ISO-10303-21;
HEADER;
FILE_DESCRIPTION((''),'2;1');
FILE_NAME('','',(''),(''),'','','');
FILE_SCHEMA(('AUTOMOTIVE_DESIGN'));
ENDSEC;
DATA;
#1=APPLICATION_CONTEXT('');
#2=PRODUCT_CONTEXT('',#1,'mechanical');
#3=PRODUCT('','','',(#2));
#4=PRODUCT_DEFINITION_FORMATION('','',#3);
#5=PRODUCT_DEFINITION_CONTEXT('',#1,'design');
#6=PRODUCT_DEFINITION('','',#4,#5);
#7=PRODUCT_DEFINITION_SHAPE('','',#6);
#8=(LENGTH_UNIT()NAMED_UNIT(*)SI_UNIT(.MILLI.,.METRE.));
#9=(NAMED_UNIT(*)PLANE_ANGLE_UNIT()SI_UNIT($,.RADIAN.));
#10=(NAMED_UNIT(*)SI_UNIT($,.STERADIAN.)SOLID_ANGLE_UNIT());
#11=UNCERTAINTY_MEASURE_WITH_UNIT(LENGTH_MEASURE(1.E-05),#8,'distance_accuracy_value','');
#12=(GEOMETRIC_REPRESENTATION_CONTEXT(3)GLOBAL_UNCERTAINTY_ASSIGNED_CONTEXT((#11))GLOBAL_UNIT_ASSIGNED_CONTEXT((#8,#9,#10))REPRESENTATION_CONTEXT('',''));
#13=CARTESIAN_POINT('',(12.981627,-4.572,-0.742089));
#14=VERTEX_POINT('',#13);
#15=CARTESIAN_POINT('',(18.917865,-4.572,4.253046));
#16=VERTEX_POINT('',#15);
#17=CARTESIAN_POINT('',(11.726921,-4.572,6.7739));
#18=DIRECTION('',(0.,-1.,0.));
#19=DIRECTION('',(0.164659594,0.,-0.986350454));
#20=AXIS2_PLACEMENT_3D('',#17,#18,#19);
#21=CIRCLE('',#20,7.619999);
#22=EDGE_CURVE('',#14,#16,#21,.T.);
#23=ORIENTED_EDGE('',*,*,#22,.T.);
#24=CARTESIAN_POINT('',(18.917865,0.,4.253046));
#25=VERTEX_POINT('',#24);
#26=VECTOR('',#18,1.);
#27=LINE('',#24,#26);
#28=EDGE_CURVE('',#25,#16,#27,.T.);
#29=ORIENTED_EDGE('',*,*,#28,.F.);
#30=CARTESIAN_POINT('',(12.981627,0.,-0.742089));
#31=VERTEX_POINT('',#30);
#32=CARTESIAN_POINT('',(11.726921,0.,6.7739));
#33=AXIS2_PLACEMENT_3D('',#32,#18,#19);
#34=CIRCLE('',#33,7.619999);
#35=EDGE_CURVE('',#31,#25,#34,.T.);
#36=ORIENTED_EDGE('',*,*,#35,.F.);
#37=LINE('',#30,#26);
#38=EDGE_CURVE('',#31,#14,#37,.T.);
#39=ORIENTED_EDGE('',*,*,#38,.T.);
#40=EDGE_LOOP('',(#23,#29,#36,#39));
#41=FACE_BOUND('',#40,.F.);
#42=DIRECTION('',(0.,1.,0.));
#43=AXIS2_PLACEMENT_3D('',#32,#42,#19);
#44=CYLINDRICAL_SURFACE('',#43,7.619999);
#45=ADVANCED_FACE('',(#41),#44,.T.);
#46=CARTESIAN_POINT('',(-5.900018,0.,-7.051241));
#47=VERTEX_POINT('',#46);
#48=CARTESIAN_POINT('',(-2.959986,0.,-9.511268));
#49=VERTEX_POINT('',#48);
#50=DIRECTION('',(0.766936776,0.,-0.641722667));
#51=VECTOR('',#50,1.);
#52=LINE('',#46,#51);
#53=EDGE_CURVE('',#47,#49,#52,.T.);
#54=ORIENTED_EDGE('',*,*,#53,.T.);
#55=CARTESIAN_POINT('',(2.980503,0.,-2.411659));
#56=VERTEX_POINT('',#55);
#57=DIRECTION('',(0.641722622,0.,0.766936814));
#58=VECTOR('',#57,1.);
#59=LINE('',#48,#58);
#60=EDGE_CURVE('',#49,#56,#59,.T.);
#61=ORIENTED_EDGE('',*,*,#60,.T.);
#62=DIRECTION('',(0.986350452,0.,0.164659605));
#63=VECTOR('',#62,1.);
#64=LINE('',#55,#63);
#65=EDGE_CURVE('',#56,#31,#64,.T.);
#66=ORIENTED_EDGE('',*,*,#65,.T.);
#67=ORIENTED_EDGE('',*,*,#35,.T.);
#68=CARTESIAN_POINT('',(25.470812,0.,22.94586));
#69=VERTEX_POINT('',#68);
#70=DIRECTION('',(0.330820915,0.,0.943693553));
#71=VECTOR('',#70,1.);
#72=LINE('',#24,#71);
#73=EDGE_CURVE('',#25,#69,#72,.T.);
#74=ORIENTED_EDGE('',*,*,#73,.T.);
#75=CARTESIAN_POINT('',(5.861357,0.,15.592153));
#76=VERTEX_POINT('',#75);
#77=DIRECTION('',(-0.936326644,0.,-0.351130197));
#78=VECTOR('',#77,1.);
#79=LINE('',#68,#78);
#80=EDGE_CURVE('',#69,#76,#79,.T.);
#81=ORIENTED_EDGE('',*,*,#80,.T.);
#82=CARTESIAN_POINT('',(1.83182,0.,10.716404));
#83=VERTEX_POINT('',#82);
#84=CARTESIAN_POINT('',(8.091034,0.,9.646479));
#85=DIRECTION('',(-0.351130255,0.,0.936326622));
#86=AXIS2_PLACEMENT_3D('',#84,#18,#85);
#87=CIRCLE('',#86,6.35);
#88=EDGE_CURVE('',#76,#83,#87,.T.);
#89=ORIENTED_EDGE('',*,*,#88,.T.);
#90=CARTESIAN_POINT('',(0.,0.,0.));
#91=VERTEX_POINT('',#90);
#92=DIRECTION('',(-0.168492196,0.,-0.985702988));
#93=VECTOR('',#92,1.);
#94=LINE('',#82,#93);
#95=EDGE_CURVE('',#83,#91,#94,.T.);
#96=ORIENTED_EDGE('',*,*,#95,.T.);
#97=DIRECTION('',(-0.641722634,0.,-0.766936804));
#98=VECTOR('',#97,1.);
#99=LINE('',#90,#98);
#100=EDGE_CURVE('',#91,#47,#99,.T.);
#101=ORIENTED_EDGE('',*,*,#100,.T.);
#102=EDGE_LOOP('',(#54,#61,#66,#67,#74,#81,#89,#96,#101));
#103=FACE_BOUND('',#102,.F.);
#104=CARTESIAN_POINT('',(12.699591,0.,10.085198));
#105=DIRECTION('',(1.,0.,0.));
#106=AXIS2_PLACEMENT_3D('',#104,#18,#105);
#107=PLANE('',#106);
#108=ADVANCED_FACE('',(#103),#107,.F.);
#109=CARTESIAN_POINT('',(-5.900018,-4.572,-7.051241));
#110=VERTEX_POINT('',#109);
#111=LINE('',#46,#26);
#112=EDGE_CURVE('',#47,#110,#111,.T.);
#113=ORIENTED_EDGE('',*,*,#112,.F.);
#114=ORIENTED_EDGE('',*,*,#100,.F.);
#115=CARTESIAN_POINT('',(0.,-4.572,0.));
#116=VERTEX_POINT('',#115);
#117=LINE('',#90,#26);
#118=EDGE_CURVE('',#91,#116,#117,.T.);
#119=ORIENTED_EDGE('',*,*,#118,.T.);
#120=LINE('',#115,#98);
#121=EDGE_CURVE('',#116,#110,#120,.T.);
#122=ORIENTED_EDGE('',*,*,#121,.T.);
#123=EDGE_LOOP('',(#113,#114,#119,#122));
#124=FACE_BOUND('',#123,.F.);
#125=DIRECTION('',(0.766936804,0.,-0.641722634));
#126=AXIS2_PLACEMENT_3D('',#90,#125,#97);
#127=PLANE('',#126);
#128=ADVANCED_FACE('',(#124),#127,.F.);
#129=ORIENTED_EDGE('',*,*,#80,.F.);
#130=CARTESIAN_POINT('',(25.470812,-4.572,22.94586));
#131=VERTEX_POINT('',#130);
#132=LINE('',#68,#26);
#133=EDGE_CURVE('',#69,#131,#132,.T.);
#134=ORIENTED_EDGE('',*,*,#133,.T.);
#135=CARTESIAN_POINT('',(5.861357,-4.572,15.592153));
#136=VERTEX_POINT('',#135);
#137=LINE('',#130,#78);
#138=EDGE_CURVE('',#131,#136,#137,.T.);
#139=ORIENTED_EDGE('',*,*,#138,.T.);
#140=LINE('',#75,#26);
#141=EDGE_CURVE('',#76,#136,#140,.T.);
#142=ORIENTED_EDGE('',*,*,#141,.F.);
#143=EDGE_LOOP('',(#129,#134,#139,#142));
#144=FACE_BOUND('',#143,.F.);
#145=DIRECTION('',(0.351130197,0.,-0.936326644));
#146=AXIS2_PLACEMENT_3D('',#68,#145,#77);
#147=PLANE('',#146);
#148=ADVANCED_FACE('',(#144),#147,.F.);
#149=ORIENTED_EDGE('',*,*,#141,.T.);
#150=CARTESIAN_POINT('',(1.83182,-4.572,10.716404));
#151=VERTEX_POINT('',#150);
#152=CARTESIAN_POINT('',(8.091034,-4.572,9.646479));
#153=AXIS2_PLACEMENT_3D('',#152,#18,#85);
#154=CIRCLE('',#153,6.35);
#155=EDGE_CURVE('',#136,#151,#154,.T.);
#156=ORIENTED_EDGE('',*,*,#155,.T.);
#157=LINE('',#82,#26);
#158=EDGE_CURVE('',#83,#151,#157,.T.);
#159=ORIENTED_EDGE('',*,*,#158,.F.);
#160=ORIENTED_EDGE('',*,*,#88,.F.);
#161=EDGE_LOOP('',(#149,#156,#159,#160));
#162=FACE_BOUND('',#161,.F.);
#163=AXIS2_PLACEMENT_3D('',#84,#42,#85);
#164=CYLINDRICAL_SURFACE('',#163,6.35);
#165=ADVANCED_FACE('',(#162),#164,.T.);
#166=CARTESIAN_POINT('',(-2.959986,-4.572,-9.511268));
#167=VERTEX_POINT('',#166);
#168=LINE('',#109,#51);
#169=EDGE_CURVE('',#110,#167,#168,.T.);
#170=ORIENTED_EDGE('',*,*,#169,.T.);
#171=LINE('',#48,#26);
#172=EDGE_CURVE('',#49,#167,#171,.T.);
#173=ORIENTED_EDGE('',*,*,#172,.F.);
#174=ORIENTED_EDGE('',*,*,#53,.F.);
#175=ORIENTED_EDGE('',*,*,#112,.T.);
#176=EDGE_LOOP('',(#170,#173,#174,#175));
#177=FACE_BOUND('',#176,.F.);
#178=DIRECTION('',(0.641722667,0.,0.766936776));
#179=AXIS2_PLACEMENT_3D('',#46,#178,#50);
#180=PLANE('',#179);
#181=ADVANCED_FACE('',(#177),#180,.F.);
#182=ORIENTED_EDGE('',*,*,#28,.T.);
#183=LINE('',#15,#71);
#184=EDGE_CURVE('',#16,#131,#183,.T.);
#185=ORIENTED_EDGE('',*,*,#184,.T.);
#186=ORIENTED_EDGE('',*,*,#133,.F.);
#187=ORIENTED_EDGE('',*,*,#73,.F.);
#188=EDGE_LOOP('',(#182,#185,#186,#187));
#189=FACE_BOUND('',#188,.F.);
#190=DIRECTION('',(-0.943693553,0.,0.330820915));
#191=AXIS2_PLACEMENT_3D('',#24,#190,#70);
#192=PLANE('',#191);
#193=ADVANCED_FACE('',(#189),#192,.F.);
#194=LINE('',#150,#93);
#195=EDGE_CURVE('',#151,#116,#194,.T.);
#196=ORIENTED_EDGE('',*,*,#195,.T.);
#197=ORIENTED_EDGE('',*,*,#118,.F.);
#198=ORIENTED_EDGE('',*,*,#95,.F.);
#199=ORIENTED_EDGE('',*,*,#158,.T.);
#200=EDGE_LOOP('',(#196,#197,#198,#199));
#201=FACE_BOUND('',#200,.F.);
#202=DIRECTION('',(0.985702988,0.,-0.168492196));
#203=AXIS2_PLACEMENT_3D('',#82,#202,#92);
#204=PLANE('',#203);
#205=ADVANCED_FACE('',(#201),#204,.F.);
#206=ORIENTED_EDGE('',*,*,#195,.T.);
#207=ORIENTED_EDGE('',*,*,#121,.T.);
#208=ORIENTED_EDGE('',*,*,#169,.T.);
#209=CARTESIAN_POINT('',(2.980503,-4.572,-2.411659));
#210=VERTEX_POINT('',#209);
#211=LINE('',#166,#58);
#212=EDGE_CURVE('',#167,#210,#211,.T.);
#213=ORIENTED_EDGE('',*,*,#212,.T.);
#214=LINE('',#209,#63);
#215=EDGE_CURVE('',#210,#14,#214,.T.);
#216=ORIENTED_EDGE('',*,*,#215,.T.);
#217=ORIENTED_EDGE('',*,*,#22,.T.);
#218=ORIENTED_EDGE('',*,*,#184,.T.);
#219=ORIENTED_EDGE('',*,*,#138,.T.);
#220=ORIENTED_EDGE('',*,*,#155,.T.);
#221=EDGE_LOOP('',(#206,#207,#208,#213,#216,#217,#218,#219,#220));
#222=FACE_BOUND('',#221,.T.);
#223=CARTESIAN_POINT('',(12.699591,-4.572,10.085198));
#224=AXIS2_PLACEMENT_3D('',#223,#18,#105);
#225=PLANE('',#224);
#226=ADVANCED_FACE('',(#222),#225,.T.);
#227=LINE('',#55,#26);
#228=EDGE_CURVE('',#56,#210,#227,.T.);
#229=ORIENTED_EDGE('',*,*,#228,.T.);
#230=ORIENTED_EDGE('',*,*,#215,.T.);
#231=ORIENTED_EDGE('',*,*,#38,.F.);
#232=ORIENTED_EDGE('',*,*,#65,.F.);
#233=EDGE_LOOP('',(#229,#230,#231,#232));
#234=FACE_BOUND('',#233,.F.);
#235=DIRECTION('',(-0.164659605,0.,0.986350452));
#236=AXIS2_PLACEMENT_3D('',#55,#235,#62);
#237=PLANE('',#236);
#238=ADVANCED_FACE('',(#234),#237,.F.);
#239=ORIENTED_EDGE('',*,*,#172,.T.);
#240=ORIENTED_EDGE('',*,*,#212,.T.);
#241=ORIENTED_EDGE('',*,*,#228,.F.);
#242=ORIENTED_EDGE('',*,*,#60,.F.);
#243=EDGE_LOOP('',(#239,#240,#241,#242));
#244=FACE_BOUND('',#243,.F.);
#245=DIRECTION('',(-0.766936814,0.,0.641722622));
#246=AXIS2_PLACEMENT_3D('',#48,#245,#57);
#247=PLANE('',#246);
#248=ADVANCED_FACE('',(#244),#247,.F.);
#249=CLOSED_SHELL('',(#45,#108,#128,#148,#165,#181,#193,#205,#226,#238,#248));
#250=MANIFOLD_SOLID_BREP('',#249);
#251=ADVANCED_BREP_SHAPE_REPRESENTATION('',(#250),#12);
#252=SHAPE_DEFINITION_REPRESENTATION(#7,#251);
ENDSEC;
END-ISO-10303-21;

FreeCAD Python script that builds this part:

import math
import FreeCAD as App
import Part
import Sketcher

V = App.Vector
Q = App.Units.Quantity

doc = App.newDocument("Part")
body = doc.addObject("PartDesign::Body", "Body")

# Sketch on XZ plane
sketch1 = doc.addObject("Sketcher::SketchObject", "Sketch")
body.addObject(sketch1)
sketch1.AttachmentSupport = (doc.XZ_Plane, [""])
sketch1.MapMode = "FlatFace"
sketch1.addGeometry(Part.LineSegment(V(1.83182, 10.716404, 0), V(0, 0, 0)), False)
sketch1.addGeometry(Part.LineSegment(V(0, 0, 0), V(-5.900018, -7.051241, 0)), False)
sketch1.addGeometry(Part.LineSegment(V(-5.900018, -7.051241, 0), V(-2.959986, -9.511268, 0)), False)
sketch1.addGeometry(Part.LineSegment(V(-2.959986, -9.511268, 0), V(2.980503, -2.411659, 0)), False)
sketch1.addGeometry(Part.LineSegment(V(2.980503, -2.411659, 0), V(12.981627, -0.742089, 0)), False)
sketch1.addGeometry(Part.ArcOfCircle(Part.Circle(V(11.726921, 6.7739, 0), V(0, 0, 1), 7.619999), math.radians(-80.52254), math.radians(-19.318603)), False)
sketch1.addGeometry(Part.LineSegment(V(18.917865, 4.253046, 0), V(25.470812, 22.94586, 0)), False)
sketch1.addGeometry(Part.LineSegment(V(25.470812, 22.94586, 0), V(5.861357, 15.592153, 0)), False)
sketch1.addGeometry(Part.ArcOfCircle(Part.Circle(V(8.091034, 9.646479, 0), V(0, 0, 1), 6.35), math.radians(110.556462), math.radians(170.299839)), False)
sketch1.addConstraint(Sketcher.Constraint("Coincident", 0, 2, 1, 1))
sketch1.addConstraint(Sketcher.Constraint("Coincident", 1, 2, 2, 1))
sketch1.addConstraint(Sketcher.Constraint("Coincident", 2, 2, 3, 1))
sketch1.addConstraint(Sketcher.Constraint("Coincident", 3, 2, 4, 1))
sketch1.addConstraint(Sketcher.Constraint("Coincident", 4, 2, 5, 1))
sketch1.addConstraint(Sketcher.Constraint("Coincident", 5, 2, 6, 1))
sketch1.addConstraint(Sketcher.Constraint("Coincident", 6, 2, 7, 1))
sketch1.addConstraint(Sketcher.Constraint("Coincident", 7, 2, 8, 1))
sketch1.addConstraint(Sketcher.Constraint("Coincident", 8, 2, 0, 1))
sketch1.addConstraint(Sketcher.Constraint("Coincident", 0, 2, -1, 1))
sketch1.addConstraint(Sketcher.Constraint("Radius", 5, Q("0.2999999 in")))
sketch1.addConstraint(Sketcher.Constraint("Radius", 8, Q("0.25 in")))
sketch1.addConstraint(Sketcher.Constraint("DistanceX", 4, 2, 6, 2, Q("0.4917002 in")))
sketch1.addConstraint(Sketcher.Constraint("DistanceY", -1, 1, 5, 3, 6.7739))
sketch1.addConstraint(Sketcher.Constraint("DistanceX", 8, 2, 5, 3, 9.895101))
sketch1.addConstraint(Sketcher.Constraint("Distance", 0, 10.871839))
sketch1.addConstraint(Sketcher.Constraint("Distance", 1, 9.194031))
sketch1.addConstraint(Sketcher.Constraint("Distance", 6, 19.80814))
sketch1.addConstraint(Sketcher.Constraint("DistanceX", -1, 1, 5, 3, 11.726921))
sketch1.addConstraint(Sketcher.Constraint("DistanceY", -1, 1, 8, 3, 9.646479))
sketch1.addConstraint(Sketcher.Constraint("DistanceX", 1, 2, -1, 1, 5.900018))
sketch1.addConstraint(Sketcher.Constraint("DistanceY", 3, 2, -1, 1, 2.411659))
sketch1.addConstraint(Sketcher.Constraint("DistanceY", 4, 2, -1, 1, 0.742089))
sketch1.addConstraint(Sketcher.Constraint("DistanceY", -1, 1, 6, 2, 22.94586))
sketch1.addConstraint(Sketcher.Constraint("DistanceY", 2, 2, 5, 3, 16.285168))
sketch1.addConstraint(Sketcher.Constraint("DistanceX", 2, 2, 8, 3, 11.05102))
sketch1.addConstraint(Sketcher.Constraint("DistanceX", 2, 2, 3, 2, 5.940489))
sketch1.addConstraint(Sketcher.Constraint("DistanceX", 7, 2, 5, 2, 13.056508))
pad1 = doc.addObject("PartDesign::Pad", "Pad")
body.addObject(pad1)
pad1.Profile = sketch1
pad1.Length = Q("0.18 in")

doc.recompute()
